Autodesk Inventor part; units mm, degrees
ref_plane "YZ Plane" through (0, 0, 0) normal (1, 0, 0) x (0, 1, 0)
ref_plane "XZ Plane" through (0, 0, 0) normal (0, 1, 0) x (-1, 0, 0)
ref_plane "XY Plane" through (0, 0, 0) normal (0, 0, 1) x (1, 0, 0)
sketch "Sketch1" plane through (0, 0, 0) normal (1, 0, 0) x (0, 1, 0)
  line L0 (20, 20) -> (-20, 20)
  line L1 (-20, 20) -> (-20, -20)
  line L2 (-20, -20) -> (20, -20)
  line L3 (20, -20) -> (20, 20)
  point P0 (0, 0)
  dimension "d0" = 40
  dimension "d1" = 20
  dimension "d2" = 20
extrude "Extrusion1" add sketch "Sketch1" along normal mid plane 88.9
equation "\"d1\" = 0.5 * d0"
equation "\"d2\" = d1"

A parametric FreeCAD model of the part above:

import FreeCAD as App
import Part
import Sketcher
from FreeCAD import Vector
Q = App.Units.Quantity


def add_polygon(sketch, points):
    """Adds a closed chain of lines whose ends are joined by coincident constraints."""
    first, n = sketch.GeometryCount, len(points)
    for a, b in zip(points, points[1:] + points[:1]):
        sketch.addGeometry(Part.LineSegment(App.Vector(*a, 0), App.Vector(*b, 0)), False)
    for i in range(n):
        sketch.addConstraint(Sketcher.Constraint("Coincident", first + i, 2, first + (i + 1) % n, 1))

doc = App.newDocument("Part")
body = doc.addObject("PartDesign::Body", "Body")

sketch1 = body.newObject("Sketcher::SketchObject", "Sketch")
sketch1.AttachmentSupport = (doc.getObject("YZ_Plane"), [""])
sketch1.MapMode = "FlatFace"
add_polygon(sketch1, [(20, -20), (20, 20), (-20, 20), (-20, -20)])
sketch1.addConstraint(Sketcher.Constraint("Vertical", 0))
sketch1.addConstraint(Sketcher.Constraint("Horizontal", 1))
sketch1.addConstraint(Sketcher.Constraint("Vertical", 2))
sketch1.addConstraint(Sketcher.Constraint("Horizontal", 3))
sketch1.addConstraint(Sketcher.Constraint("Symmetric", 0, 2, 2, 2, -1, 1))
sketch1.addConstraint(Sketcher.Constraint("Equal", 3, 0))
sketch1.addConstraint(Sketcher.Constraint("DistanceX", 1, 2, 1, 1, Q("1.5748 in")))
pad1 = body.newObject("PartDesign::Pad", "Pad")
pad1.Profile = sketch1
pad1.Length = Q("3.5 in")
pad1.Midplane = True

doc.recompute()
